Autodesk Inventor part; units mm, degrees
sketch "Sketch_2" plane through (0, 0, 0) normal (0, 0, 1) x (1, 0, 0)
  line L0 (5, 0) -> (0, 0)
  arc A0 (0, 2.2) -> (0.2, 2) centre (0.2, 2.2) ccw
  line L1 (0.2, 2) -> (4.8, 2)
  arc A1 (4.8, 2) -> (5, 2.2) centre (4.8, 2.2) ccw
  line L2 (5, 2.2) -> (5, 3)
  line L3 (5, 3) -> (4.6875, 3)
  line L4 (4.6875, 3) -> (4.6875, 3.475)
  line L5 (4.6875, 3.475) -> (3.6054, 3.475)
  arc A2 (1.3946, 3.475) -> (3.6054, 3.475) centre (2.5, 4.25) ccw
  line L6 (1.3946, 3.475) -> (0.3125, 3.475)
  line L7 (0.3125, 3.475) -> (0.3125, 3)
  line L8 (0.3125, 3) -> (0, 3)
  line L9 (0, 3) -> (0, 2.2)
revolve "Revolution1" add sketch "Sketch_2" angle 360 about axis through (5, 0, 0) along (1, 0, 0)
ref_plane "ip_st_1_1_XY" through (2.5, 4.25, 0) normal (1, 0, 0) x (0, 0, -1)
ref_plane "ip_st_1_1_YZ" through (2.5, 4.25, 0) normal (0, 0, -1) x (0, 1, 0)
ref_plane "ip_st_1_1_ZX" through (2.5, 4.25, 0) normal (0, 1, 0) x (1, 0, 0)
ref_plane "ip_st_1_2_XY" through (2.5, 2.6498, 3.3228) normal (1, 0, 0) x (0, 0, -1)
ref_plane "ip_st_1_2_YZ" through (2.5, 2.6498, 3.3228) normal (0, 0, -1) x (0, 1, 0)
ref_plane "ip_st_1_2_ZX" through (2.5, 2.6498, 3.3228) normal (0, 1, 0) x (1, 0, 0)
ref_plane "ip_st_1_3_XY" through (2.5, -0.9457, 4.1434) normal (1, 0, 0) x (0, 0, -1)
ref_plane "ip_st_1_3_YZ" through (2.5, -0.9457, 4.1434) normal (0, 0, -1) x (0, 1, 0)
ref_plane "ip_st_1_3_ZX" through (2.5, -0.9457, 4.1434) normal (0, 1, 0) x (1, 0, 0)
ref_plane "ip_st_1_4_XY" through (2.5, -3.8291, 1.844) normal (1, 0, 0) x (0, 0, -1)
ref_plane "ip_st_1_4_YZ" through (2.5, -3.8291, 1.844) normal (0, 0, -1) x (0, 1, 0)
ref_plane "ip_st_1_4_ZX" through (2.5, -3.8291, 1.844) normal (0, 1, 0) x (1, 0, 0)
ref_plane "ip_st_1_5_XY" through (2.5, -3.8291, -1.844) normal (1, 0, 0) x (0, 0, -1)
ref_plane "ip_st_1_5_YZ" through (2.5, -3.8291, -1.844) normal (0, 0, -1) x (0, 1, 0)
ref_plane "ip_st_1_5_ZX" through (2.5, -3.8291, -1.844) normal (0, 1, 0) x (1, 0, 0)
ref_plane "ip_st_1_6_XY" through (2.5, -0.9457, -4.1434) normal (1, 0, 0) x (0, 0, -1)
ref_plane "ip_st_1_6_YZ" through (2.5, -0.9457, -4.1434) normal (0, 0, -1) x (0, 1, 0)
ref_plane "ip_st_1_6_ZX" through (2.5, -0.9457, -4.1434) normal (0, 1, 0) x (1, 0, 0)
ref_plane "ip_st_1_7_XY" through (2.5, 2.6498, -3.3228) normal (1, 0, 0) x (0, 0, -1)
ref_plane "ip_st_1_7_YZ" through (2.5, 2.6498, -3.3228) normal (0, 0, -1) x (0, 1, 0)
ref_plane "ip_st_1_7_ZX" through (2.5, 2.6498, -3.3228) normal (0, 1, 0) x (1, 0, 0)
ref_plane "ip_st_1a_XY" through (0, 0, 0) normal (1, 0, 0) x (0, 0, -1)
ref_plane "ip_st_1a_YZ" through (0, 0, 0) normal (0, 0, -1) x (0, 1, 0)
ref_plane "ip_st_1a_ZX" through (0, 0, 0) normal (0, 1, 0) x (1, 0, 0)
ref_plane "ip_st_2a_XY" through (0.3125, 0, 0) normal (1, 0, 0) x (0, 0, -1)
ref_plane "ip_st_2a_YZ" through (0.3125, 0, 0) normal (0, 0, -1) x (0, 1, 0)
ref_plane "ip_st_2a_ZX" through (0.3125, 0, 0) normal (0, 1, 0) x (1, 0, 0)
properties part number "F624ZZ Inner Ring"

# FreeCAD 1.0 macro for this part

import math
import FreeCAD as App
import Part
import Sketcher
from FreeCAD import Vector
Q = App.Units.Quantity

doc = App.newDocument("Part")
body = doc.addObject("PartDesign::Body", "Body")

sketch1 = body.newObject("Sketcher::SketchObject", "Sketch")
sketch1.AttachmentSupport = (doc.getObject("XY_Plane"), [""])
sketch1.MapMode = "FlatFace"
sketch1.addGeometry([
    Part.LineSegment(Vector(0, 3, 0), Vector(0, 2.2, 0)),
    Part.ArcOfCircle(Part.Circle(Vector(0.2, 2.2, 0), Vector(0, 0, 1), 0.2), math.radians(180), math.radians(270)),
    Part.LineSegment(Vector(0.2, 2, 0), Vector(4.8, 2, 0)),
    Part.ArcOfCircle(Part.Circle(Vector(4.8, 2.2, 0), Vector(0, 0, 1), 0.2), math.radians(-90), math.radians(0)),
    Part.LineSegment(Vector(5, 2.2, 0), Vector(5, 3, 0)),
    Part.LineSegment(Vector(5, 3, 0), Vector(4.69, 3, 0)),
    Part.LineSegment(Vector(4.69, 3, 0), Vector(4.69, 3.48, 0)),
    Part.LineSegment(Vector(4.69, 3.48, 0), Vector(3.61, 3.48, 0)),
    Part.ArcOfCircle(Part.Circle(Vector(2.5, 4.25, 0), Vector(0, 0, 1), 1.35), math.radians(-145), math.radians(-35)),
    Part.LineSegment(Vector(1.39, 3.48, 0), Vector(0.31, 3.48, 0)),
    Part.LineSegment(Vector(0.31, 3.48, 0), Vector(0.31, 3, 0)),
    Part.LineSegment(Vector(0.31, 3, 0), Vector(0, 3, 0)),
], False)
sketch1.addConstraint([
    Sketcher.Constraint("Tangent", 0, 2, 1, 1),
    Sketcher.Constraint("Tangent", 1, 2, 2, 1),
    Sketcher.Constraint("Tangent", 2, 2, 3, 1),
    Sketcher.Constraint("Tangent", 3, 2, 4, 1),
    Sketcher.Constraint("Coincident", 4, 2, 5, 1),
    Sketcher.Constraint("Coincident", 5, 2, 6, 1),
    Sketcher.Constraint("Coincident", 6, 2, 7, 1),
    Sketcher.Constraint("Coincident", 7, 2, 8, 2),
    Sketcher.Constraint("Coincident", 8, 1, 9, 1),
    Sketcher.Constraint("Coincident", 9, 2, 10, 1),
    Sketcher.Constraint("Coincident", 10, 2, 11, 1),
    Sketcher.Constraint("Coincident", 11, 2, 0, 1),
    Sketcher.Constraint("Vertical", 0),
    Sketcher.Constraint("Horizontal", 2),
    Sketcher.Constraint("Vertical", 4),
    Sketcher.Constraint("Horizontal", 5),
    Sketcher.Constraint("Vertical", 6),
    Sketcher.Constraint("Horizontal", 7),
    Sketcher.Constraint("Horizontal", 9),
    Sketcher.Constraint("Vertical", 10),
    Sketcher.Constraint("Horizontal", 11),
    Sketcher.Constraint("Equal", 1, 3),
    Sketcher.Constraint("PointOnObject", 0, 2, -2),
    Sketcher.Constraint("Horizontal", 7, 2, 8, 1),
    Sketcher.Constraint("Horizontal", 5, 2, 10, 2),
    Sketcher.Constraint("Equal", 7, 9),
    Sketcher.Constraint("Equal", 5, 11),
    Sketcher.Constraint("Radius", 1, Q("0.2 mm")),
    Sketcher.Constraint("Radius", 8, Q("1.35 mm")),
    Sketcher.Constraint("DistanceX", 2, 1, 2, 2, Q("4.6 mm")),
    Sketcher.Constraint("DistanceY", 0, 2, 0, 1, Q("0.8 mm")),
    Sketcher.Constraint("DistanceY", -1, 1, 1, 2, Q("2 mm")),
    Sketcher.Constraint("DistanceX", 7, 2, 7, 1, Q("1.082 mm")),
    Sketcher.Constraint("DistanceY", 6, 1, 6, 2, Q("0.475 mm")),
    Sketcher.Constraint("DistanceY", -1, 1, 8, 3, Q("4.25 mm")),
])
revolution = body.newObject("PartDesign::Revolution", "Revolution")
revolution.Profile = sketch1
revolution.ReferenceAxis = (sketch1, ["H_Axis"])
revolution.Angle = 360

doc.recompute()
